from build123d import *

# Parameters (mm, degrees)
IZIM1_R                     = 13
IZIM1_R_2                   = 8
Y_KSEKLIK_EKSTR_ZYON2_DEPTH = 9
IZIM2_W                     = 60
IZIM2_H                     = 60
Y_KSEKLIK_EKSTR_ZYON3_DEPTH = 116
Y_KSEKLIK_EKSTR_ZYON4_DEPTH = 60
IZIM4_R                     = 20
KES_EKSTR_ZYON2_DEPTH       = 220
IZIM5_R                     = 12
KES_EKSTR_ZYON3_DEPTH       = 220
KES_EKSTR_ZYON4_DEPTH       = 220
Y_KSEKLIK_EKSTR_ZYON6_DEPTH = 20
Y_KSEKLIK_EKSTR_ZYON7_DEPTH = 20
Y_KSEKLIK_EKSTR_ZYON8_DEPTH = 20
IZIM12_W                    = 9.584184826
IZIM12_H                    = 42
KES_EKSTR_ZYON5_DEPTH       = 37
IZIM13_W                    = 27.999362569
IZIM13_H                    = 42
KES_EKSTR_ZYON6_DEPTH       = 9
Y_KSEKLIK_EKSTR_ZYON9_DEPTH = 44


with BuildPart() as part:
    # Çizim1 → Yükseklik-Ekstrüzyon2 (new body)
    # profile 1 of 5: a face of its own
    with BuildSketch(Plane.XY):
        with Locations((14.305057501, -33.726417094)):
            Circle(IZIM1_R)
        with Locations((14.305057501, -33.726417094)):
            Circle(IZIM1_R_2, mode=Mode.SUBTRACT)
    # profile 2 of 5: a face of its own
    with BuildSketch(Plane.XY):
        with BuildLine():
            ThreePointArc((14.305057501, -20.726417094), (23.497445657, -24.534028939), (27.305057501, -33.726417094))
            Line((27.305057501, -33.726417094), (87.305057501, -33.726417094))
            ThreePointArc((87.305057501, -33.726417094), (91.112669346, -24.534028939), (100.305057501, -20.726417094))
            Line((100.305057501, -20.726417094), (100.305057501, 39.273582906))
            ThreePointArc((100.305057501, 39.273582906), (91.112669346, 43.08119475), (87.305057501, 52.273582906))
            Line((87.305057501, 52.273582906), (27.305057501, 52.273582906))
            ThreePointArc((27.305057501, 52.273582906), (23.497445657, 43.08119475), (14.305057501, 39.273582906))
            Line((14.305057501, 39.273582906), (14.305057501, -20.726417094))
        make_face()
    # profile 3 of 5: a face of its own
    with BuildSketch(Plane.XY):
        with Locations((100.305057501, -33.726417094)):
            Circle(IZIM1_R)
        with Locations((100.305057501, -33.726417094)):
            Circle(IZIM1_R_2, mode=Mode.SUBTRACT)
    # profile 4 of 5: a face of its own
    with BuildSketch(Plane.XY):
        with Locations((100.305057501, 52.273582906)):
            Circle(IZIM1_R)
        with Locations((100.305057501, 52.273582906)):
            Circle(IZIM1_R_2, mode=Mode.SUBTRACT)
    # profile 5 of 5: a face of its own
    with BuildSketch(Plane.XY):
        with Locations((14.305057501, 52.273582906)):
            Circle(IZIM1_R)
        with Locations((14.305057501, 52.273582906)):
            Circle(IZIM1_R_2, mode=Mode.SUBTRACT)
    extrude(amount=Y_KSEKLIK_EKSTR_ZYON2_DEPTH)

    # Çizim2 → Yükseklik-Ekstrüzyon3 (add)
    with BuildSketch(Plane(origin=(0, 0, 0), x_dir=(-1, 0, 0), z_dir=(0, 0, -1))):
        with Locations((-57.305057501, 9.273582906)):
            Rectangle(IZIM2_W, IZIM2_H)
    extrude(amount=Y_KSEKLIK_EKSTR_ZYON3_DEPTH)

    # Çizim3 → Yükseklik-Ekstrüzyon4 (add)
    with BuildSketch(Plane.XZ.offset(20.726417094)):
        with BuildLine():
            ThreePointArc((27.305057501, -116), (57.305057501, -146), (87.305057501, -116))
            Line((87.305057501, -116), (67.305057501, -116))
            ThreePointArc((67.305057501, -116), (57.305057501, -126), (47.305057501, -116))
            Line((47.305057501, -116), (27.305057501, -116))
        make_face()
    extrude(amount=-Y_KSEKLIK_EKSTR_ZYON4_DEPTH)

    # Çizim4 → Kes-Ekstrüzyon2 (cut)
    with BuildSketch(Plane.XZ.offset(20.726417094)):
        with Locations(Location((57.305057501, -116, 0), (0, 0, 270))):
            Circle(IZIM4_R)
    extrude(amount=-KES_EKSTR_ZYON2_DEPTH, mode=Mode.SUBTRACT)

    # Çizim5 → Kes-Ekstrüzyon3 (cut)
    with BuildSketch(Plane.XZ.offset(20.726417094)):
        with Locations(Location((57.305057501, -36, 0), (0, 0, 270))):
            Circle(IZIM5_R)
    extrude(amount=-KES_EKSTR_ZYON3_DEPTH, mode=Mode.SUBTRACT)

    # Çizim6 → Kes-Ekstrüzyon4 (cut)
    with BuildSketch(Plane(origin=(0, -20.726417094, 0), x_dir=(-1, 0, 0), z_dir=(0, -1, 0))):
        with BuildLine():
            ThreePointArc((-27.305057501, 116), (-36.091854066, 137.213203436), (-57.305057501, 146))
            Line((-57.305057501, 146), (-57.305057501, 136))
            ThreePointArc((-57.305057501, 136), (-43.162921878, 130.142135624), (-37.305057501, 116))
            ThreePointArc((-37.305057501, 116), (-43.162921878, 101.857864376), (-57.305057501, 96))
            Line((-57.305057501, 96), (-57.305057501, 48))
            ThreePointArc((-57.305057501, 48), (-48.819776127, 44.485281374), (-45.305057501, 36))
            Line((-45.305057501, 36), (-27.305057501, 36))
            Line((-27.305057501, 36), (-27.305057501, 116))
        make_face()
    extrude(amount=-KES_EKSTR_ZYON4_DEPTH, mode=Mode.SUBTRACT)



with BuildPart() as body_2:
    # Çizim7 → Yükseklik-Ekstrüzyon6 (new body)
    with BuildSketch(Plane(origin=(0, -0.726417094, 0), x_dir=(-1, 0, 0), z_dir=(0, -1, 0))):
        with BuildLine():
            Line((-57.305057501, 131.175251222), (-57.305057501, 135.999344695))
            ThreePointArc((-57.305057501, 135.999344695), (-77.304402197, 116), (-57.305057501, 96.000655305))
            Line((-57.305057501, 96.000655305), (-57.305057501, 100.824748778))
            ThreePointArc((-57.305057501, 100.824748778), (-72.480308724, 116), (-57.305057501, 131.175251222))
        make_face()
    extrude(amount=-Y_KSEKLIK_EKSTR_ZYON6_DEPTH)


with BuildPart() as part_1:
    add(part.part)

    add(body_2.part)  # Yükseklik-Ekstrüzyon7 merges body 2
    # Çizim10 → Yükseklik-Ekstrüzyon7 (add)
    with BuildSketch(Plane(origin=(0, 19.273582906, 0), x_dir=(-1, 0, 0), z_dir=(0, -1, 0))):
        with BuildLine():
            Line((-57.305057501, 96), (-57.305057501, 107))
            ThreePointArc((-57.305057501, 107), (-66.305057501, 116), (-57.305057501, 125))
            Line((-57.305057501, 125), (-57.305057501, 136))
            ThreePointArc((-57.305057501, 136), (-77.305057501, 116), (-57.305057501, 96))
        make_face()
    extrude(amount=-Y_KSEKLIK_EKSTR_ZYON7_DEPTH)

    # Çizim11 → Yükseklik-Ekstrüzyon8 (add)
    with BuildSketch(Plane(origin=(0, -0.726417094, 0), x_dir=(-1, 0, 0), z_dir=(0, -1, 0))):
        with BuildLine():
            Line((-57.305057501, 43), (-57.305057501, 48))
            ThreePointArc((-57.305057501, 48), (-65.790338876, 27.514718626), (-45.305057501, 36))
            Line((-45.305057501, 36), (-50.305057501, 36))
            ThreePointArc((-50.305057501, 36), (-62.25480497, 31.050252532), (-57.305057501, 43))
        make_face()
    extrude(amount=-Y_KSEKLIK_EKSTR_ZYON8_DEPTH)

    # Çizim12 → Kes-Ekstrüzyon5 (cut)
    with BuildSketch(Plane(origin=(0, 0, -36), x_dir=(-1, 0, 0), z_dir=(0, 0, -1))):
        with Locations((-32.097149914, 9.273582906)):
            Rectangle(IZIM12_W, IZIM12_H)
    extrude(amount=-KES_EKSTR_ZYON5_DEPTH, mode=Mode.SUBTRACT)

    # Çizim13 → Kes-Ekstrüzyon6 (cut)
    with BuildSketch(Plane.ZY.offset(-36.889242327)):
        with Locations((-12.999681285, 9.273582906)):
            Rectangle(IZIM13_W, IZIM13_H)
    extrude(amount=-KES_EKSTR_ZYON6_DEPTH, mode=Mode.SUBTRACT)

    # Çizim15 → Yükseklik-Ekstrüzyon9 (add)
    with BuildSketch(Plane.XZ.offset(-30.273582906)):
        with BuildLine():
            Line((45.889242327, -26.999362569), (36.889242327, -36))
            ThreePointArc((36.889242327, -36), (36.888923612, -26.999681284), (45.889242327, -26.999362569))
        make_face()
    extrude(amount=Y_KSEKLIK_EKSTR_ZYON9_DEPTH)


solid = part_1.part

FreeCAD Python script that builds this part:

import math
import FreeCAD as App
import Part
import Sketcher
Q = App.Units.Quantity

doc = App.newDocument("Part")
body = doc.addObject("PartDesign::Body", "Body")

sketch1 = body.newObject("Sketcher::SketchObject", "Sketch")
sketch1.AttachmentSupport = (doc.getObject("XY_Plane"), [""])
sketch1.MapMode = "FlatFace"
sketch1.addGeometry([
    Part.ArcOfCircle(Part.Circle(App.Vector(14, -34, 0), App.Vector(0, 0, 1), 13), math.radians(90), math.radians(360)),
    Part.LineSegment(App.Vector(27, -34, 0), App.Vector(87, -34, 0)),
    Part.ArcOfCircle(Part.Circle(App.Vector(100, -34, 0), App.Vector(0, 0, 1), 13), math.radians(180), math.radians(450)),
    Part.LineSegment(App.Vector(100, -21, 0), App.Vector(100, 39, 0)),
    Part.ArcOfCircle(Part.Circle(App.Vector(100, 52, 0), App.Vector(0, 0, 1), 13), math.radians(-90), math.radians(180)),
    Part.LineSegment(App.Vector(87, 52, 0), App.Vector(27, 52, 0)),
    Part.ArcOfCircle(Part.Circle(App.Vector(14, 52, 0), App.Vector(0, 0, 1), 13), math.radians(0), math.radians(270)),
    Part.LineSegment(App.Vector(14, 39, 0), App.Vector(14, -21, 0)),
    Part.Circle(App.Vector(14, -34, 0), App.Vector(0, 0, 1), 8),
    Part.Circle(App.Vector(100, -34, 0), App.Vector(0, 0, 1), 8),
    Part.Circle(App.Vector(100, 52, 0), App.Vector(0, 0, 1), 8),
    Part.Circle(App.Vector(14, 52, 0), App.Vector(0, 0, 1), 8),
], False)
sketch1.addConstraint([
    Sketcher.Constraint("Coincident", 0, 2, 1, 1),
    Sketcher.Constraint("Coincident", 1, 2, 2, 1),
    Sketcher.Constraint("Coincident", 2, 2, 3, 1),
    Sketcher.Constraint("Coincident", 3, 2, 4, 1),
    Sketcher.Constraint("Coincident", 4, 2, 5, 1),
    Sketcher.Constraint("Coincident", 5, 2, 6, 1),
    Sketcher.Constraint("Coincident", 6, 2, 7, 1),
    Sketcher.Constraint("Coincident", 7, 2, 0, 1),
    Sketcher.Constraint("Horizontal", 1),
    Sketcher.Constraint("Vertical", 3),
    Sketcher.Constraint("Horizontal", 5),
    Sketcher.Constraint("Vertical", 7),
    Sketcher.Constraint("Coincident", 8, 3, 0, 3),
    Sketcher.Constraint("Coincident", 9, 3, 2, 3),
    Sketcher.Constraint("Coincident", 10, 3, 4, 3),
    Sketcher.Constraint("Coincident", 11, 3, 6, 3),
    Sketcher.Constraint("Equal", 0, 2),
    Sketcher.Constraint("Equal", 2, 4),
    Sketcher.Constraint("Equal", 4, 6),
    Sketcher.Constraint("Equal", 8, 9),
    Sketcher.Constraint("Equal", 9, 10),
    Sketcher.Constraint("Equal", 10, 11),
    Sketcher.Constraint("Horizontal", 0, 3, 2, 3),
    Sketcher.Constraint("Horizontal", 4, 3, 6, 3),
    Sketcher.Constraint("Horizontal", 9, 3, 0, 2),
    Sketcher.Constraint("Horizontal", 11, 3, 4, 2),
    Sketcher.Constraint("Vertical", 2, 3, 4, 3),
    Sketcher.Constraint("Vertical", 0, 3, 6, 3),
    Sketcher.Constraint("Vertical", 10, 3, 2, 2),
    Sketcher.Constraint("Vertical", 11, 3, 6, 2),
    Sketcher.Constraint("Equal", 5, 3),
    Sketcher.Constraint("Diameter", 8, Q("16 mm")),
    Sketcher.Constraint("Radius", 0, Q("13 mm")),
    Sketcher.Constraint("DistanceX", 1, 1, 1, 2, Q("60 mm")),
    Sketcher.Constraint("DistanceX", -1, 1, 0, 3, Q("14.305058 mm")),
    Sketcher.Constraint("DistanceY", 0, 3, -1, 1, Q("33.726417 mm")),
])
pad1 = body.newObject("PartDesign::Pad", "Pad")
pad1.Profile = sketch1
pad1.Length = 9

sketch2 = body.newObject("Sketcher::SketchObject", "Sketch001")
sketch2.AttachmentSupport = (doc.getObject("XY_Plane"), [""])
sketch2.MapMode = "FlatFace"
sketch2.addGeometry([
    Part.LineSegment(App.Vector(87, 39, 0), App.Vector(87, -21, 0)),
    Part.LineSegment(App.Vector(87, -21, 0), App.Vector(27, -21, 0)),
    Part.LineSegment(App.Vector(27, -21, 0), App.Vector(27, 39, 0)),
    Part.LineSegment(App.Vector(27, 39, 0), App.Vector(87, 39, 0)),
], False)
sketch2.addConstraint([
    Sketcher.Constraint("Coincident", 0, 2, 1, 1),
    Sketcher.Constraint("Coincident", 1, 2, 2, 1),
    Sketcher.Constraint("Coincident", 2, 2, 3, 1),
    Sketcher.Constraint("Coincident", 3, 2, 0, 1),
    Sketcher.Constraint("Vertical", 0),
    Sketcher.Constraint("Horizontal", 1),
    Sketcher.Constraint("Vertical", 2),
    Sketcher.Constraint("Horizontal", 3),
    Sketcher.Constraint("Equal", 3, 0),
    Sketcher.Constraint("DistanceX", 1, 2, 1, 1, Q("60 mm")),
    Sketcher.Constraint("DistanceX", -1, 1, 0, 2, Q("87.305058 mm")),
    Sketcher.Constraint("DistanceY", 0, 2, -1, 1, Q("20.726417 mm")),
])
pad2 = body.newObject("PartDesign::Pad", "Pad001")
pad2.Profile = sketch2
pad2.Length = 116
pad2.Reversed = True

sketch3 = body.newObject("Sketcher::SketchObject", "Sketch002")
sketch3.AttachmentSupport = (doc.getObject("XZ_Plane"), [""])
sketch3.MapMode = "FlatFace"
sketch3.AttachmentOffset = App.Placement(App.Vector(0, 0, 20.726417), App.Rotation())
sketch3.addGeometry([
    Part.ArcOfCircle(Part.Circle(App.Vector(57, -116, 0), App.Vector(0, 0, 1), 30), math.radians(180), math.radians(360)),
    Part.LineSegment(App.Vector(87, -116, 0), App.Vector(67, -116, 0)),
    Part.ArcOfCircle(Part.Circle(App.Vector(57, -116, 0), App.Vector(0, 0, 1), 10), math.radians(180), math.radians(360)),
    Part.LineSegment(App.Vector(47, -116, 0), App.Vector(27, -116, 0)),
], False)
sketch3.addConstraint([
    Sketcher.Constraint("Coincident", 0, 2, 1, 1),
    Sketcher.Constraint("Coincident", 1, 2, 2, 2),
    Sketcher.Constraint("Coincident", 2, 1, 3, 1),
    Sketcher.Constraint("Coincident", 3, 2, 0, 1),
    Sketcher.Constraint("Horizontal", 1),
    Sketcher.Constraint("Horizontal", 3),
    Sketcher.Constraint("Coincident", 2, 3, 0, 3),
    Sketcher.Constraint("Horizontal", 2, 3, 0, 2),
    Sketcher.Constraint("Horizontal", 1, 2, 2, 1),
    Sketcher.Constraint("Radius", 0, Q("30 mm")),
    Sketcher.Constraint("Radius", 2, Q("10 mm")),
    Sketcher.Constraint("DistanceY", 0, 3, -1, 1, Q("116 mm")),
    Sketcher.Constraint("DistanceX", -1, 1, 0, 3, Q("57.305058 mm")),
])
pad3 = body.newObject("PartDesign::Pad", "Pad002")
pad3.Profile = sketch3
pad3.Length = 60
pad3.Reversed = True

sketch4 = body.newObject("Sketcher::SketchObject", "Sketch003")
sketch4.AttachmentSupport = (doc.getObject("XZ_Plane"), [""])
sketch4.MapMode = "FlatFace"
sketch4.AttachmentOffset = App.Placement(App.Vector(0, 0, 20.726417), App.Rotation())
sketch4.addGeometry(Part.Circle(App.Vector(57, -116, 0), App.Vector(0, 0, 1), 20), False)
sketch4.addConstraint([
    Sketcher.Constraint("Diameter", 0, Q("40 mm")),
    Sketcher.Constraint("DistanceY", 0, 3, -1, 1, Q("116 mm")),
    Sketcher.Constraint("DistanceX", -1, 1, 0, 3, Q("57.305058 mm")),
])
pocket1 = body.newObject("PartDesign::Pocket", "Pocket")
pocket1.Profile = sketch4
pocket1.Length = 220

sketch5 = body.newObject("Sketcher::SketchObject", "Sketch004")
sketch5.AttachmentSupport = (doc.getObject("XZ_Plane"), [""])
sketch5.MapMode = "FlatFace"
sketch5.AttachmentOffset = App.Placement(App.Vector(0, 0, 20.726417), App.Rotation())
sketch5.addGeometry(Part.Circle(App.Vector(57, -36, 0), App.Vector(0, 0, 1), 12), False)
sketch5.addConstraint([
    Sketcher.Constraint("Diameter", 0, Q("24 mm")),
    Sketcher.Constraint("DistanceY", 0, 3, -1, 1, Q("36 mm")),
    Sketcher.Constraint("DistanceX", -1, 1, 0, 3, Q("57.305058 mm")),
])
pocket2 = body.newObject("PartDesign::Pocket", "Pocket001")
pocket2.Profile = sketch5
pocket2.Length = 220

sketch6 = body.newObject("Sketcher::SketchObject", "Sketch005")
sketch6.AttachmentSupport = (doc.getObject("XZ_Plane"), [""])
sketch6.MapMode = "FlatFace"
sketch6.AttachmentOffset = App.Placement(App.Vector(0, 0, 20.726417), App.Rotation())
sketch6.addGeometry([
    Part.ArcOfCircle(Part.Circle(App.Vector(57, -116, 0), App.Vector(0, 0, 1), 30), math.radians(180), math.radians(270)),
    Part.LineSegment(App.Vector(57, -146, 0), App.Vector(57, -136, 0)),
    Part.ArcOfCircle(Part.Circle(App.Vector(57, -116, 0), App.Vector(0, 0, 1), 20), math.radians(-180), math.radians(-90)),
    Part.ArcOfCircle(Part.Circle(App.Vector(57, -116, 0), App.Vector(0, 0, 1), 20), math.radians(90), math.radians(180)),
    Part.LineSegment(App.Vector(57, -96, 0), App.Vector(57, -48, 0)),
    Part.ArcOfCircle(Part.Circle(App.Vector(57, -36, 0), App.Vector(0, 0, 1), 12), math.radians(-180), math.radians(-90)),
    Part.LineSegment(App.Vector(45, -36, 0), App.Vector(27, -36, 0)),
    Part.LineSegment(App.Vector(27, -36, 0), App.Vector(27, -116, 0)),
], False)
sketch6.addConstraint([
    Sketcher.Constraint("Coincident", 0, 2, 1, 1),
    Sketcher.Constraint("Coincident", 1, 2, 2, 2),
    Sketcher.Constraint("Tangent", 2, 1, 3, 2),
    Sketcher.Constraint("Coincident", 3, 1, 4, 1),
    Sketcher.Constraint("Coincident", 4, 2, 5, 2),
    Sketcher.Constraint("Coincident", 5, 1, 6, 1),
    Sketcher.Constraint("Coincident", 6, 2, 7, 1),
    Sketcher.Constraint("Tangent", 7, 2, 0, 1),
    Sketcher.Constraint("Vertical", 1),
    Sketcher.Constraint("Vertical", 4),
    Sketcher.Constraint("Horizontal", 6),
    Sketcher.Constraint("Vertical", 7),
    Sketcher.Constraint("Coincident", 2, 3, 0, 3),
    Sketcher.Constraint("Equal", 2, 3),
    Sketcher.Constraint("Horizontal", 3, 3, 2, 1),
    Sketcher.Constraint("Vertical", 3, 3, 5, 3),
    Sketcher.Constraint("Vertical", 5, 3, 0, 2),
    Sketcher.Constraint("Vertical", 1, 2, 3, 1),
    Sketcher.Constraint("Radius", 0, Q("30 mm")),
    Sketcher.Constraint("Radius", 2, Q("20 mm")),
    Sketcher.Constraint("Radius", 5, Q("12 mm")),
    Sketcher.Constraint("DistanceY", 4, 1, 4, 2, Q("48 mm")),
    Sketcher.Constraint("DistanceY", 7, 2, 7, 1, Q("80 mm")),
    Sketcher.Constraint("DistanceY", 0, 3, -1, 1, Q("116 mm")),
    Sketcher.Constraint("DistanceX", -1, 1, 0, 3, Q("57.305058 mm")),
])
pocket3 = body.newObject("PartDesign::Pocket", "Pocket002")
pocket3.Profile = sketch6
pocket3.Length = 220
body2 = doc.addObject("PartDesign::Body", "Body001")

sketch7 = body2.newObject("Sketcher::SketchObject", "Sketch006")
sketch7.AttachmentSupport = (doc.getObject("XZ_Plane001"), [""])
sketch7.MapMode = "FlatFace"
sketch7.AttachmentOffset = App.Placement(App.Vector(0, 0, 0.726417), App.Rotation())
sketch7.addGeometry([
    Part.LineSegment(App.Vector(57.3, -131.2, 0), App.Vector(57.3, -136, 0)),
    Part.ArcOfCircle(Part.Circle(App.Vector(57.3, -116, 0), App.Vector(0, 0, 1), 20), math.radians(-90), math.radians(90)),
    Part.LineSegment(App.Vector(57.3, -96, 0), App.Vector(57.3, -100.8, 0)),
    Part.ArcOfCircle(Part.Circle(App.Vector(57.3, -116, 0), App.Vector(0, 0, 1), 15.2), math.radians(-90), math.radians(90)),
], False)
sketch7.addConstraint([
    Sketcher.Constraint("Coincident", 0, 2, 1, 1),
    Sketcher.Constraint("Coincident", 1, 2, 2, 1),
    Sketcher.Constraint("Coincident", 2, 2, 3, 2),
    Sketcher.Constraint("Coincident", 3, 1, 0, 1),
    Sketcher.Constraint("Vertical", 0),
    Sketcher.Constraint("Vertical", 2),
    Sketcher.Constraint("Coincident", 3, 3, 1, 3),
    Sketcher.Constraint("Vertical", 3, 3, 0, 2),
    Sketcher.Constraint("Vertical", 0, 2, 1, 2),
    Sketcher.Constraint("DistanceY", 1, 3, -1, 1, Q("116 mm")),
    Sketcher.Constraint("Radius", 3, Q("15.175251 mm")),
    Sketcher.Constraint("Radius", 1, Q("19.999345 mm")),
    Sketcher.Constraint("DistanceX", -1, 1, 1, 3, Q("57.305058 mm")),
])
pad4 = body2.newObject("PartDesign::Pad", "Pad003")
pad4.Profile = sketch7
pad4.Length = 20
pad4.Reversed = True
body.AllowCompound = True
doc.recompute()

boolean = body.newObject("PartDesign::Boolean", "Boolean")
boolean.Type = "Fuse"
boolean.addObjects([body2])

sketch8 = body.newObject("Sketcher::SketchObject", "Sketch007")
sketch8.AttachmentSupport = (doc.getObject("XZ_Plane"), [""])
sketch8.MapMode = "FlatFace"
sketch8.AttachmentOffset = App.Placement(App.Vector(0, 0, -19.273583), App.Rotation())
sketch8.addGeometry([
    Part.LineSegment(App.Vector(57, -96, 0), App.Vector(57, -107, 0)),
    Part.ArcOfCircle(Part.Circle(App.Vector(57, -116, 0), App.Vector(0, 0, 1), 9), math.radians(-90), math.radians(90)),
    Part.LineSegment(App.Vector(57, -125, 0), App.Vector(57, -136, 0)),
    Part.ArcOfCircle(Part.Circle(App.Vector(57, -116, 0), App.Vector(0, 0, 1), 20), math.radians(-90), math.radians(90)),
], False)
sketch8.addConstraint([
    Sketcher.Constraint("Coincident", 0, 2, 1, 2),
    Sketcher.Constraint("Coincident", 1, 1, 2, 1),
    Sketcher.Constraint("Coincident", 2, 2, 3, 1),
    Sketcher.Constraint("Coincident", 3, 2, 0, 1),
    Sketcher.Constraint("Vertical", 0),
    Sketcher.Constraint("Vertical", 2),
    Sketcher.Constraint("Coincident", 3, 3, 1, 3),
    Sketcher.Constraint("Vertical", 3, 3, 0, 2),
    Sketcher.Constraint("Vertical", 0, 2, 1, 1),
    Sketcher.Constraint("Radius", 1, Q("9 mm")),
    Sketcher.Constraint("Radius", 3, Q("20 mm")),
    Sketcher.Constraint("DistanceY", 1, 3, -1, 1, Q("116 mm")),
    Sketcher.Constraint("DistanceX", -1, 1, 1, 3, Q("57.305058 mm")),
])
pad5 = body.newObject("PartDesign::Pad", "Pad004")
pad5.Profile = sketch8
pad5.Length = 20
pad5.Reversed = True

sketch9 = body.newObject("Sketcher::SketchObject", "Sketch008")
sketch9.AttachmentSupport = (doc.getObject("XZ_Plane"), [""])
sketch9.MapMode = "FlatFace"
sketch9.AttachmentOffset = App.Placement(App.Vector(0, 0, 0.726417), App.Rotation())
sketch9.addGeometry([
    Part.LineSegment(App.Vector(57, -43, 0), App.Vector(57, -48, 0)),
    Part.ArcOfCircle(Part.Circle(App.Vector(57, -36, 0), App.Vector(0, 0, 1), 12), math.radians(-90), math.radians(180)),
    Part.LineSegment(App.Vector(45, -36, 0), App.Vector(50, -36, 0)),
    Part.ArcOfCircle(Part.Circle(App.Vector(57, -36, 0), App.Vector(0, 0, 1), 7), math.radians(-90), math.radians(180)),
], False)
sketch9.addConstraint([
    Sketcher.Constraint("Coincident", 0, 2, 1, 1),
    Sketcher.Constraint("Coincident", 1, 2, 2, 1),
    Sketcher.Constraint("Coincident", 2, 2, 3, 2),
    Sketcher.Constraint("Coincident", 3, 1, 0, 1),
    Sketcher.Constraint("Vertical", 0),
    Sketcher.Constraint("Horizontal", 2),
    Sketcher.Constraint("Coincident", 3, 3, 1, 3),
    Sketcher.Constraint("Horizontal", 3, 3, 1, 2),
    Sketcher.Constraint("Vertical", 3, 3, 0, 2),
    Sketcher.Constraint("Radius", 1, Q("12 mm")),
    Sketcher.Constraint("Radius", 3, Q("7 mm")),
    Sketcher.Constraint("DistanceY", 1, 3, -1, 1, Q("36 mm")),
    Sketcher.Constraint("DistanceX", -1, 1, 1, 3, Q("57.305058 mm")),
])
pad6 = body.newObject("PartDesign::Pad", "Pad005")
pad6.Profile = sketch9
pad6.Length = 20
pad6.Reversed = True

sketch10 = body.newObject("Sketcher::SketchObject", "Sketch009")
sketch10.AttachmentSupport = (doc.getObject("XY_Plane"), [""])
sketch10.MapMode = "FlatFace"
sketch10.AttachmentOffset = App.Placement(App.Vector(0, 0, -36), App.Rotation())
sketch10.addGeometry([
    Part.LineSegment(App.Vector(37, 30, 0), App.Vector(37, -12, 0)),
    Part.LineSegment(App.Vector(37, -12, 0), App.Vector(27, -12, 0)),
    Part.LineSegment(App.Vector(27, -12, 0), App.Vector(27, 30, 0)),
    Part.LineSegment(App.Vector(27, 30, 0), App.Vector(37, 30, 0)),
], False)
sketch10.addConstraint([
    Sketcher.Constraint("Coincident", 0, 2, 1, 1),
    Sketcher.Constraint("Coincident", 1, 2, 2, 1),
    Sketcher.Constraint("Coincident", 2, 2, 3, 1),
    Sketcher.Constraint("Coincident", 3, 2, 0, 1),
    Sketcher.Constraint("Vertical", 0),
    Sketcher.Constraint("Horizontal", 1),
    Sketcher.Constraint("Vertical", 2),
    Sketcher.Constraint("Horizontal", 3),
    Sketcher.Constraint("DistanceY", 0, 2, 0, 1, Q("42 mm")),
    Sketcher.Constraint("DistanceX", 1, 2, 1, 1, Q("9.584185 mm")),
    Sketcher.Constraint("DistanceX", -1, 1, 0, 2, Q("36.889242 mm")),
    Sketcher.Constraint("DistanceY", 0, 2, -1, 1, Q("11.726417 mm")),
])
pocket4 = body.newObject("PartDesign::Pocket", "Pocket003")
pocket4.Profile = sketch10
pocket4.Length = 37
pocket4.Reversed = True

sketch11 = body.newObject("Sketcher::SketchObject", "Sketch010")
sketch11.AttachmentSupport = (doc.getObject("YZ_Plane"), [""])
sketch11.MapMode = "FlatFace"
sketch11.AttachmentOffset = App.Placement(App.Vector(0, 0, 36.889242), App.Rotation())
sketch11.addGeometry([
    Part.LineSegment(App.Vector(30, -27, 0), App.Vector(-12, -27, 0)),
    Part.LineSegment(App.Vector(-12, -27, 0), App.Vector(-12, 1, 0)),
    Part.LineSegment(App.Vector(-12, 1, 0), App.Vector(30, 1, 0)),
    Part.LineSegment(App.Vector(30, 1, 0), App.Vector(30, -27, 0)),
], False)
sketch11.addConstraint([
    Sketcher.Constraint("Coincident", 0, 2, 1, 1),
    Sketcher.Constraint("Coincident", 1, 2, 2, 1),
    Sketcher.Constraint("Coincident", 2, 2, 3, 1),
    Sketcher.Constraint("Coincident", 3, 2, 0, 1),
    Sketcher.Constraint("Horizontal", 0),
    Sketcher.Constraint("Vertical", 1),
    Sketcher.Constraint("Horizontal", 2),
    Sketcher.Constraint("Vertical", 3),
    Sketcher.Constraint("DistanceX", 0, 2, 0, 1, Q("42 mm")),
    Sketcher.Constraint("DistanceY", -1, 1, 1, 2, Q("1 mm")),
    Sketcher.Constraint("DistanceY", 1, 1, 1, 2, Q("27.999363 mm")),
    Sketcher.Constraint("DistanceX", 0, 2, -1, 1, Q("11.726417 mm")),
])
pocket5 = body.newObject("PartDesign::Pocket", "Pocket004")
pocket5.Profile = sketch11
pocket5.Length = 9
pocket5.Reversed = True

sketch12 = body.newObject("Sketcher::SketchObject", "Sketch011")
sketch12.AttachmentSupport = (doc.getObject("XZ_Plane"), [""])
sketch12.MapMode = "FlatFace"
sketch12.AttachmentOffset = App.Placement(App.Vector(0, 0, -30.273583), App.Rotation())
sketch12.addGeometry([
    Part.LineSegment(App.Vector(37, -36, 0), App.Vector(46, -27, 0)),
    Part.ArcOfCircle(Part.Circle(App.Vector(41, -31, 0), App.Vector(0, 0, 1), 6), math.radians(45), math.radians(225)),
], False)
sketch12.addConstraint([
    Sketcher.Constraint("Coincident", 0, 1, 1, 2),
    Sketcher.Constraint("Coincident", 1, 1, 0, 2),
    Sketcher.Constraint("DistanceY", 0, 1, -1, 1, Q("36 mm")),
    Sketcher.Constraint("DistanceX", 0, 1, 1, 1, Q("9 mm")),
    Sketcher.Constraint("DistanceX", 0, 1, 1, 3, Q("4.5 mm")),
    Sketcher.Constraint("Radius", 1, Q("6.364186 mm")),
    Sketcher.Constraint("DistanceX", -1, 1, 1, 3, Q("41.389242 mm")),
])
pad7 = body.newObject("PartDesign::Pad", "Pad006")
pad7.Profile = sketch12
pad7.Length = 44

doc.recompute()
